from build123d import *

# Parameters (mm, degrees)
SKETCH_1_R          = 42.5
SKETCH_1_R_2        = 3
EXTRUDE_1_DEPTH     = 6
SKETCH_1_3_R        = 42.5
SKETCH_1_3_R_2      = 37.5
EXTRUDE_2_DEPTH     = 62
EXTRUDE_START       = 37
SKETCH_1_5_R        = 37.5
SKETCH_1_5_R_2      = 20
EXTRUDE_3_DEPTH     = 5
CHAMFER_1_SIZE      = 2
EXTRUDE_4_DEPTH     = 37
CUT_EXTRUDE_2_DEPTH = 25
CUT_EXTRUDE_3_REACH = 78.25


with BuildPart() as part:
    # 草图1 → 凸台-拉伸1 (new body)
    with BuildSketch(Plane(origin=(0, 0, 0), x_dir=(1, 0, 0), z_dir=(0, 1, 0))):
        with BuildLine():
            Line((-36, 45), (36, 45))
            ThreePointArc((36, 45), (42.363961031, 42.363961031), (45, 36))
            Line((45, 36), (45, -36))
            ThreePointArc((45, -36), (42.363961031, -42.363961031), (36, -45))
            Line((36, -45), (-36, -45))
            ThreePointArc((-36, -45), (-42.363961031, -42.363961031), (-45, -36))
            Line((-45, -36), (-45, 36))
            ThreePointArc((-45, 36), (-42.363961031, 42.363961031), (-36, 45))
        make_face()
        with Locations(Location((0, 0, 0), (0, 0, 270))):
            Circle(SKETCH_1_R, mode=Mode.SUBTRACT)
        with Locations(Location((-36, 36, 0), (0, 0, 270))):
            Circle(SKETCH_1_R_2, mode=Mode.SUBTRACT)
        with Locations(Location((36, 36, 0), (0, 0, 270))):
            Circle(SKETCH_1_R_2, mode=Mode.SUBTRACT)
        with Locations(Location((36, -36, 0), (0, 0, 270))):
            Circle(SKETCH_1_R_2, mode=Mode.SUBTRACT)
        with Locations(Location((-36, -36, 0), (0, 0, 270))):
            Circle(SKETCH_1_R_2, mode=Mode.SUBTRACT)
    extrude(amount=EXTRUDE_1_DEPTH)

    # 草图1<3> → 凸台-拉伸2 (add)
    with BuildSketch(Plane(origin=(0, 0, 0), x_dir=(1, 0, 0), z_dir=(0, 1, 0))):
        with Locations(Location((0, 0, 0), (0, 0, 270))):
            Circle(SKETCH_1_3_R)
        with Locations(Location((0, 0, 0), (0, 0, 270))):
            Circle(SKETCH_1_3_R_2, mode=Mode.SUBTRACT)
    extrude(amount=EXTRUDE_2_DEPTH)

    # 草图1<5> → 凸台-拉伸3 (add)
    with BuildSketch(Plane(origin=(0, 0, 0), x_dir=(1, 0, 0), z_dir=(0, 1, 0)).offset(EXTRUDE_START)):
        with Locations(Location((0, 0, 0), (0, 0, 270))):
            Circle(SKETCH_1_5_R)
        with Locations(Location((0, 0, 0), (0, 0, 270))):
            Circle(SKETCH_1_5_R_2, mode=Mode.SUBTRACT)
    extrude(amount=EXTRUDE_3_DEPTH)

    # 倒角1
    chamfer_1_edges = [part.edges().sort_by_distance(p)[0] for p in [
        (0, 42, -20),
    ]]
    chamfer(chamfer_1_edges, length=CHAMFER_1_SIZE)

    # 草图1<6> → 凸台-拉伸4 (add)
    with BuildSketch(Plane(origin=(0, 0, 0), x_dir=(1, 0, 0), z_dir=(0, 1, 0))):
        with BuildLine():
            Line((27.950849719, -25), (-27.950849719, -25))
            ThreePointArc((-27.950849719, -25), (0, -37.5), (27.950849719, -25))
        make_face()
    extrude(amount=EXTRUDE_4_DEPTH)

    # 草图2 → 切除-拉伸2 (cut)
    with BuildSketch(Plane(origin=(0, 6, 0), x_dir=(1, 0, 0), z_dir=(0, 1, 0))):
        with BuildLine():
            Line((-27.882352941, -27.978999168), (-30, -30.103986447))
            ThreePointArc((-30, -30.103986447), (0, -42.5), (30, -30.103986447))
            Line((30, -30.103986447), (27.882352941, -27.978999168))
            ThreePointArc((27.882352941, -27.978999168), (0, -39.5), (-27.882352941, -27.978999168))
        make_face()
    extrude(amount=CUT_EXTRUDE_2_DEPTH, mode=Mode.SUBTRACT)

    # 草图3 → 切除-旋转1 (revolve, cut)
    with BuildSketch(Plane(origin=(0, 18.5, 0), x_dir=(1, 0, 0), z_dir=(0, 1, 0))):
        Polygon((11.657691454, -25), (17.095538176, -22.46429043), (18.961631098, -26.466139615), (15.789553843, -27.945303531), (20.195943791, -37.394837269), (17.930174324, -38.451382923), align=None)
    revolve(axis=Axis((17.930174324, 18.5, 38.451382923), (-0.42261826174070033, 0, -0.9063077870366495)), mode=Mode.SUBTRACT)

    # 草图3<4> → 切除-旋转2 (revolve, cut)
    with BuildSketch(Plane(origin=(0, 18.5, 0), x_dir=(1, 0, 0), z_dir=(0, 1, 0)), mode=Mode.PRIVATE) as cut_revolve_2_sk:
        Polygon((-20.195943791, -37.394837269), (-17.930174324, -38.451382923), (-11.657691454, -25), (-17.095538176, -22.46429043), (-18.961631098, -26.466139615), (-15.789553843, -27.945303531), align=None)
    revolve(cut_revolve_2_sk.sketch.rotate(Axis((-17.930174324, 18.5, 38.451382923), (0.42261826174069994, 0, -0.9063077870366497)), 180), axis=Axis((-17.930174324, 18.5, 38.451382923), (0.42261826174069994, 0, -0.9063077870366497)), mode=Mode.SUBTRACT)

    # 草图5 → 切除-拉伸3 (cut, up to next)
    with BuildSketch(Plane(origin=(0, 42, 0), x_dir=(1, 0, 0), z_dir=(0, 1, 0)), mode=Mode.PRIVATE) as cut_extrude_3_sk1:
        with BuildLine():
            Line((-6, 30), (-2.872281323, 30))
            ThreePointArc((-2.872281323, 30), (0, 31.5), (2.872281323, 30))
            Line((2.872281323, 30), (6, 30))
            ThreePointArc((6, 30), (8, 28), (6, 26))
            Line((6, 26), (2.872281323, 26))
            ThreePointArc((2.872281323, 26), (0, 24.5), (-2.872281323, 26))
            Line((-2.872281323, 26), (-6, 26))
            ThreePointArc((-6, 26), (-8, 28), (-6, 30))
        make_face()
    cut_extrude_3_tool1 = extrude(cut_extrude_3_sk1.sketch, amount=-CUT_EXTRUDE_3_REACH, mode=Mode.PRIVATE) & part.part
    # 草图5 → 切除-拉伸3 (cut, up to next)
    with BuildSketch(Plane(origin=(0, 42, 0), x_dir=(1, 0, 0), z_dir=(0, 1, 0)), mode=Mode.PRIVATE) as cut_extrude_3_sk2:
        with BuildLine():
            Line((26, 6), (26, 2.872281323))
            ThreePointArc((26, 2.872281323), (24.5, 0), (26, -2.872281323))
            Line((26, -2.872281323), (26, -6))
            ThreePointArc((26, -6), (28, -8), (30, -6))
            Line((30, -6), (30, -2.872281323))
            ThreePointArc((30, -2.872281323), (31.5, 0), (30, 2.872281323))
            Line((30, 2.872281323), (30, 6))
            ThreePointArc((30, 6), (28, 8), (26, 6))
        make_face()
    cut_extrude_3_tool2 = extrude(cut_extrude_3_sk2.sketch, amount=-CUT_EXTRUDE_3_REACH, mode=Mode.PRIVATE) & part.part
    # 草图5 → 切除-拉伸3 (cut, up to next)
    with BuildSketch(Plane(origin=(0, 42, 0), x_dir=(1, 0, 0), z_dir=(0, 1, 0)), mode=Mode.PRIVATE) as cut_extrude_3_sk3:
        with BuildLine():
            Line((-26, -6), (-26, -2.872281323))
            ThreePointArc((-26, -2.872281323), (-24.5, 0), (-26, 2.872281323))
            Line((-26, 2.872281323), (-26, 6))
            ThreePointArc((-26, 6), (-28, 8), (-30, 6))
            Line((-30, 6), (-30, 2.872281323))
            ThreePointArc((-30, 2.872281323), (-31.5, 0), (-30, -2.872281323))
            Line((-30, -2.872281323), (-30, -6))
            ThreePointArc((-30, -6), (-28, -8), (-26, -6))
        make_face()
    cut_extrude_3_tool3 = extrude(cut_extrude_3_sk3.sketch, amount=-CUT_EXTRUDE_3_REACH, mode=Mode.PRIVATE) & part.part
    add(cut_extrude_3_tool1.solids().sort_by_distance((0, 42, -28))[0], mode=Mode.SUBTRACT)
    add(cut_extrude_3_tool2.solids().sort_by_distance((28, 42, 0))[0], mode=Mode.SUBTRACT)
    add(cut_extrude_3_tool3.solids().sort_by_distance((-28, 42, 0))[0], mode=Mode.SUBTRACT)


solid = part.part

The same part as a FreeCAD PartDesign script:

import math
import FreeCAD as App
import Part
import Sketcher
from FreeCAD import Vector
Q = App.Units.Quantity


def edges_at(feature, points):
    """Names of the edges that pass closest to the given points."""
    edges = feature.Shape.Edges
    near = lambda p: min(range(len(edges)), key=lambda i: edges[i].distToShape(Part.Vertex(*p))[0])
    return sorted({f"Edge{near(p) + 1}" for p in points})

doc = App.newDocument("Part")
body = doc.addObject("PartDesign::Body", "Body")

# Sketch on XZ plane
sketch1 = body.newObject("Sketcher::SketchObject", "Sketch")
sketch1.AttachmentSupport = (doc.getObject("XZ_Plane"), [""])
sketch1.MapMode = "FlatFace"
sketch1.addGeometry([
    Part.LineSegment(Vector(36, -45, 0), Vector(-36, -45, 0)),  # 0
    Part.ArcOfCircle(Part.Circle(Vector(-36, -36, 0), Vector(0, 0, 1), 9), math.radians(180), math.radians(270)),  # 1
    Part.LineSegment(Vector(-45, -36, 0), Vector(-45, 36, 0)),  # 2
    Part.ArcOfCircle(Part.Circle(Vector(-36, 36, 0), Vector(0, 0, 1), 9), math.radians(90), math.radians(180)),  # 3
    Part.LineSegment(Vector(-36, 45, 0), Vector(36, 45, 0)),  # 4
    Part.ArcOfCircle(Part.Circle(Vector(36, 36, 0), Vector(0, 0, 1), 9), math.radians(0), math.radians(90)),  # 5
    Part.LineSegment(Vector(45, 36, 0), Vector(45, -36, 0)),  # 6
    Part.ArcOfCircle(Part.Circle(Vector(36, -36, 0), Vector(0, 0, 1), 9), math.radians(-90), math.radians(0)),  # 7
    Part.Circle(Vector(36, 36, 0), Vector(0, 0, 1), 3),  # 8
    Part.Circle(Vector(-36, 36, 0), Vector(0, 0, 1), 3),  # 9
    Part.Circle(Vector(36, -36, 0), Vector(0, 0, 1), 3),  # 10
    Part.Circle(Vector(0, 0, 0), Vector(0, 0, 1), 42.5),  # 11
    Part.Circle(Vector(-36, -36, 0), Vector(0, 0, 1), 3),  # 12
], False)
sketch1.addConstraint([
    Sketcher.Constraint("Tangent", 0, 2, 1, 2),
    Sketcher.Constraint("Tangent", 1, 1, 2, 1),
    Sketcher.Constraint("Tangent", 2, 2, 3, 2),
    Sketcher.Constraint("Tangent", 3, 1, 4, 1),
    Sketcher.Constraint("Tangent", 4, 2, 5, 2),
    Sketcher.Constraint("Tangent", 5, 1, 6, 1),
    Sketcher.Constraint("Tangent", 6, 2, 7, 2),
    Sketcher.Constraint("Tangent", 7, 1, 0, 1),
    Sketcher.Constraint("Horizontal", 0),
    Sketcher.Constraint("Vertical", 2),
    Sketcher.Constraint("Horizontal", 4),
    Sketcher.Constraint("Vertical", 6),
    Sketcher.Constraint("Coincident", 11, 3, -1, 1),
    Sketcher.Constraint("Coincident", 8, 3, 5, 3),
    Sketcher.Constraint("Coincident", 9, 3, 3, 3),
    Sketcher.Constraint("Coincident", 10, 3, 7, 3),
    Sketcher.Constraint("Coincident", 12, 3, 1, 3),
    Sketcher.Constraint("Equal", 1, 3),
    Sketcher.Constraint("Equal", 3, 5),
    Sketcher.Constraint("Equal", 5, 7),
    Sketcher.Constraint("Equal", 8, 9),
    Sketcher.Constraint("Equal", 9, 10),
    Sketcher.Constraint("Equal", 10, 12),
    Sketcher.Constraint("Symmetric", 1, 3, 5, 3, -1, 1),
    Sketcher.Constraint("Equal", 4, 2),
    Sketcher.Constraint("Diameter", 8, Q("6 mm")),
    Sketcher.Constraint("Diameter", 11, Q("85 mm")),
    Sketcher.Constraint("Radius", 1, Q("9 mm")),
    Sketcher.Constraint("DistanceX", 0, 2, 0, 1, Q("72 mm")),
])
pad1 = body.newObject("PartDesign::Pad", "Pad")
pad1.Profile = sketch1
pad1.Length = 6
pad1.Reversed = True

# Sketch on XZ plane
sketch2 = body.newObject("Sketcher::SketchObject", "Sketch001")
sketch2.AttachmentSupport = (doc.getObject("XZ_Plane"), [""])
sketch2.MapMode = "FlatFace"
sketch2.addGeometry([
    Part.Circle(Vector(0, 0, 0), Vector(0, 0, 1), 42),
    Part.Circle(Vector(0, 0, 0), Vector(0, 0, 1), 38),
], False)
sketch2.addConstraint([
    Sketcher.Constraint("Coincident", 0, 3, -1, 1),
    Sketcher.Constraint("Coincident", 1, 3, -1, 1),
    Sketcher.Constraint("Diameter", 0, Q("85 mm")),
    Sketcher.Constraint("Diameter", 1, Q("75 mm")),
])
pad2 = body.newObject("PartDesign::Pad", "Pad001")
pad2.Profile = sketch2
pad2.Length = 62
pad2.Reversed = True

# Sketch on XZ plane
sketch3 = body.newObject("Sketcher::SketchObject", "Sketch002")
sketch3.AttachmentSupport = (doc.getObject("XZ_Plane"), [""])
sketch3.MapMode = "FlatFace"
sketch3.AttachmentOffset = App.Placement(Vector(0, 0, -37), App.Rotation())
sketch3.addGeometry([
    Part.Circle(Vector(0, 0, 0), Vector(0, 0, 1), 38),
    Part.Circle(Vector(0, 0, 0), Vector(0, 0, 1), 20),
], False)
sketch3.addConstraint([
    Sketcher.Constraint("Coincident", 0, 3, -1, 1),
    Sketcher.Constraint("Coincident", 1, 3, -1, 1),
    Sketcher.Constraint("Diameter", 0, Q("75 mm")),
    Sketcher.Constraint("Diameter", 1, Q("40 mm")),
])
pad3 = body.newObject("PartDesign::Pad", "Pad002")
pad3.Profile = sketch3
pad3.Length = 5
pad3.Reversed = True
doc.recompute()

chamfer = body.newObject("PartDesign::Chamfer", "Chamfer")
chamfer.Base = (pad3, edges_at(pad3, [(0, 42, -20)]))
chamfer.Size = 2

# Sketch on XZ plane
sketch4 = body.newObject("Sketcher::SketchObject", "Sketch003")
sketch4.AttachmentSupport = (doc.getObject("XZ_Plane"), [""])
sketch4.MapMode = "FlatFace"
sketch4.addGeometry([
    Part.LineSegment(Vector(28, 25, 0), Vector(-28, 25, 0)),
    Part.ArcOfCircle(Part.Circle(Vector(0, 0, 0), Vector(0, 0, 1), 38), math.radians(42), math.radians(138)),
], False)
sketch4.addConstraint([
    Sketcher.Constraint("Coincident", 0, 1, 1, 1),
    Sketcher.Constraint("Coincident", 1, 2, 0, 2),
    Sketcher.Constraint("Horizontal", 0),
    Sketcher.Constraint("Coincident", 1, 3, -1, 1),
    Sketcher.Constraint("Radius", 1, Q("37.5 mm")),
    Sketcher.Constraint("DistanceY", -1, 1, 0, 1, Q("25 mm")),
])
pad4 = body.newObject("PartDesign::Pad", "Pad003")
pad4.Profile = sketch4
pad4.Length = 37
pad4.Reversed = True

# Sketch on XZ plane
sketch5 = body.newObject("Sketcher::SketchObject", "Sketch004")
sketch5.AttachmentSupport = (doc.getObject("XZ_Plane"), [""])
sketch5.MapMode = "FlatFace"
sketch5.AttachmentOffset = App.Placement(Vector(0, 0, -6), App.Rotation())
sketch5.addGeometry([
    Part.LineSegment(Vector(-27.9, 28, 0), Vector(-30, 30.1, 0)),
    Part.ArcOfCircle(Part.Circle(Vector(0, 0, 0), Vector(0, 0, 1), 42.5), math.radians(45), math.radians(135)),
    Part.LineSegment(Vector(30, 30.1, 0), Vector(27.9, 28, 0)),
    Part.ArcOfCircle(Part.Circle(Vector(0, 0, 0), Vector(0, 0, 1), 39.5), math.radians(45), math.radians(135)),
], False)
sketch5.addConstraint([
    Sketcher.Constraint("Coincident", 0, 2, 1, 2),
    Sketcher.Constraint("Coincident", 1, 1, 2, 1),
    Sketcher.Constraint("Coincident", 2, 2, 3, 1),
    Sketcher.Constraint("Coincident", 3, 2, 0, 1),
    Sketcher.Constraint("Coincident", 1, 3, -1, 1),
    Sketcher.Constraint("Coincident", 3, 3, -1, 1),
    Sketcher.Constraint("Horizontal", 0, 2, 1, 1),
    Sketcher.Constraint("Horizontal", 2, 2, 3, 2),
    Sketcher.Constraint("Radius", 1, Q("42.5 mm")),
    Sketcher.Constraint("Radius", 3, Q("39.5 mm")),
    Sketcher.Constraint("DistanceX", 0, 2, -1, 1, Q("30 mm")),
    Sketcher.Constraint("DistanceY", -1, 1, 2, 2, Q("27.978999 mm")),
])
pocket1 = body.newObject("PartDesign::Pocket", "Pocket")
pocket1.Profile = sketch5
pocket1.Length = 25

# Sketch on XZ plane
sketch6 = body.newObject("Sketcher::SketchObject", "Sketch005")
sketch6.AttachmentSupport = (doc.getObject("XZ_Plane"), [""])
sketch6.MapMode = "FlatFace"
sketch6.AttachmentOffset = App.Placement(Vector(0, 0, -18.5), App.Rotation())
sketch6.addGeometry([
    Part.LineSegment(Vector(17.1, 22.5, 0), Vector(11.7, 25, 0)),  # 0
    Part.LineSegment(Vector(11.7, 25, 0), Vector(17.9, 38.5, 0)),  # 1
    Part.LineSegment(Vector(17.9, 38.5, 0), Vector(20.2, 37.4, 0)),  # 2
    Part.LineSegment(Vector(20.2, 37.4, 0), Vector(15.8, 27.9, 0)),  # 3
    Part.LineSegment(Vector(15.8, 27.9, 0), Vector(19, 26.5, 0)),  # 4
    Part.LineSegment(Vector(19, 26.5, 0), Vector(17.1, 22.5, 0)),  # 5
], False)
sketch6.addGeometry(Part.LineSegment(Vector(17.9, 38.5, 0), Vector(11.7, 25, 0)), True)  # axis
sketch6.addConstraint([
    Sketcher.Constraint("Coincident", 0, 2, 1, 1),
    Sketcher.Constraint("Coincident", 1, 2, 2, 1),
    Sketcher.Constraint("Coincident", 2, 2, 3, 1),
    Sketcher.Constraint("Coincident", 3, 2, 4, 1),
    Sketcher.Constraint("Coincident", 4, 2, 5, 1),
    Sketcher.Constraint("Coincident", 5, 2, 0, 1),
    Sketcher.Constraint("Coincident", 6, 1, 1, 2),
    Sketcher.Constraint("Coincident", 6, 2, 0, 2),
    Sketcher.Constraint("Perpendicular", 0, 1),
    Sketcher.Constraint("Perpendicular", 1, 2),
    Sketcher.Constraint("Perpendicular", 2, 3),
    Sketcher.Constraint("Perpendicular", 3, 4),
    Sketcher.Constraint("Perpendicular", 4, 5),
    Sketcher.Constraint("Angle", 0, Q("155 deg")),
    Sketcher.Constraint("Distance", 0, Q("6 mm")),
    Sketcher.Constraint("DistanceY", -1, 1, 0, 2, Q("25 mm")),
    Sketcher.Constraint("Distance", 2, Q("2.5 mm")),
    Sketcher.Constraint("Distance", 1, Q("14.841959 mm")),
    Sketcher.Constraint("DistanceX", -1, 1, 0, 2, Q("11.657691 mm")),
    Sketcher.Constraint("DistanceX", -1, 1, 4, 2, Q("18.961631 mm")),
])
groove = body.newObject("PartDesign::Groove", "Groove")
groove.Profile = sketch6
groove.ReferenceAxis = (sketch6, ["Axis0"])
groove.Angle = 360

# Sketch on XZ plane
sketch7 = body.newObject("Sketcher::SketchObject", "Sketch006")
sketch7.AttachmentSupport = (doc.getObject("XZ_Plane"), [""])
sketch7.MapMode = "FlatFace"
sketch7.AttachmentOffset = App.Placement(Vector(0, 0, -18.5), App.Rotation())
sketch7.addGeometry([
    Part.LineSegment(Vector(-20.2, 37.4, 0), Vector(-17.9, 38.5, 0)),  # 0
    Part.LineSegment(Vector(-17.9, 38.5, 0), Vector(-11.7, 25, 0)),  # 1
    Part.LineSegment(Vector(-11.7, 25, 0), Vector(-17.1, 22.5, 0)),  # 2
    Part.LineSegment(Vector(-17.1, 22.5, 0), Vector(-19, 26.5, 0)),  # 3
    Part.LineSegment(Vector(-19, 26.5, 0), Vector(-15.8, 27.9, 0)),  # 4
    Part.LineSegment(Vector(-15.8, 27.9, 0), Vector(-20.2, 37.4, 0)),  # 5
], False)
sketch7.addGeometry(Part.LineSegment(Vector(-17.9, 38.5, 0), Vector(-11.7, 25, 0)), True)  # axis
sketch7.addConstraint([
    Sketcher.Constraint("Coincident", 0, 2, 1, 1),
    Sketcher.Constraint("Coincident", 1, 2, 2, 1),
    Sketcher.Constraint("Coincident", 2, 2, 3, 1),
    Sketcher.Constraint("Coincident", 3, 2, 4, 1),
    Sketcher.Constraint("Coincident", 4, 2, 5, 1),
    Sketcher.Constraint("Coincident", 5, 2, 0, 1),
    Sketcher.Constraint("Coincident", 6, 1, 0, 2),
    Sketcher.Constraint("Coincident", 6, 2, 1, 2),
    Sketcher.Constraint("Perpendicular", 0, 1),
    Sketcher.Constraint("Perpendicular", 1, 2),
    Sketcher.Constraint("Perpendicular", 2, 3),
    Sketcher.Constraint("Perpendicular", 3, 4),
    Sketcher.Constraint("Perpendicular", 4, 5),
    Sketcher.Constraint("Angle", 0, Q("25 deg")),
    Sketcher.Constraint("Distance", 2, Q("6 mm")),
    Sketcher.Constraint("DistanceY", -1, 1, 1, 2, Q("25 mm")),
    Sketcher.Constraint("Distance", 0, Q("2.5 mm")),
    Sketcher.Constraint("Distance", 1, Q("14.841959 mm")),
    Sketcher.Constraint("DistanceX", 1, 2, -1, 1, Q("11.657691 mm")),
    Sketcher.Constraint("DistanceX", 3, 2, -1, 1, Q("18.961631 mm")),
])
groove2 = body.newObject("PartDesign::Groove", "Groove001")
groove2.Profile = sketch7
groove2.ReferenceAxis = (sketch7, ["Axis0"])
groove2.Angle = 360

# Sketch on XZ plane
sketch8 = body.newObject("Sketcher::SketchObject", "Sketch007")
sketch8.AttachmentSupport = (doc.getObject("XZ_Plane"), [""])
sketch8.MapMode = "FlatFace"
sketch8.AttachmentOffset = App.Placement(Vector(0, 0, -42), App.Rotation())
sketch8.addGeometry([
    Part.LineSegment(Vector(-2.9, -30, 0), Vector(-6, -30, 0)),  # 0
    Part.ArcOfCircle(Part.Circle(Vector(-6, -28, 0), Vector(0, 0, 1), 2), math.radians(90), math.radians(270)),  # 1
    Part.LineSegment(Vector(-6, -26, 0), Vector(-2.9, -26, 0)),  # 2
    Part.ArcOfCircle(Part.Circle(Vector(0, -28, 0), Vector(0, 0, 1), 3.5), math.radians(35), math.radians(145)),  # 3
    Part.LineSegment(Vector(2.9, -26, 0), Vector(6, -26, 0)),  # 4
    Part.ArcOfCircle(Part.Circle(Vector(6, -28, 0), Vector(0, 0, 1), 2), math.radians(-90), math.radians(90)),  # 5
    Part.LineSegment(Vector(6, -30, 0), Vector(2.9, -30, 0)),  # 6
    Part.ArcOfCircle(Part.Circle(Vector(0, -28, 0), Vector(0, 0, 1), 3.5), math.radians(-145), math.radians(-35)),  # 7
], False)
sketch8.addConstraint([
    Sketcher.Constraint("Tangent", 0, 2, 1, 2),
    Sketcher.Constraint("Tangent", 1, 1, 2, 1),
    Sketcher.Constraint("Coincident", 2, 2, 3, 2),
    Sketcher.Constraint("Coincident", 3, 1, 4, 1),
    Sketcher.Constraint("Tangent", 4, 2, 5, 2),
    Sketcher.Constraint("Tangent", 5, 1, 6, 1),
    Sketcher.Constraint("Coincident", 6, 2, 7, 2),
    Sketcher.Constraint("Coincident", 7, 1, 0, 1),
    Sketcher.Constraint("Horizontal", 0),
    Sketcher.Constraint("Horizontal", 2),
    Sketcher.Constraint("Horizontal", 4),
    Sketcher.Constraint("Horizontal", 6),
    Sketcher.Constraint("Coincident", 7, 3, 3, 3),
    Sketcher.Constraint("Equal", 1, 5),
    Sketcher.Constraint("Equal", 3, 7),
    Sketcher.Constraint("Symmetric", 1, 3, 5, 3, -2),
    Sketcher.Constraint("PointOnObject", 3, 3, -2),
    Sketcher.Constraint("Horizontal", 1, 3, 3, 3),
    Sketcher.Constraint("Radius", 1, Q("2 mm")),
    Sketcher.Constraint("Radius", 3, Q("3.5 mm")),
    Sketcher.Constraint("DistanceX", 1, 3, -1, 1, Q("6 mm")),
    Sketcher.Constraint("DistanceY", 1, 3, -1, 1, Q("28 mm")),
])
pocket2 = body.newObject("PartDesign::Pocket", "Pocket001")
pocket2.Profile = sketch8
pocket2.Type = "UpToFirst"
pocket2.Reversed = True

# Sketch on XZ plane
sketch9 = body.newObject("Sketcher::SketchObject", "Sketch008")
sketch9.AttachmentSupport = (doc.getObject("XZ_Plane"), [""])
sketch9.MapMode = "FlatFace"
sketch9.AttachmentOffset = App.Placement(Vector(0, 0, -42), App.Rotation())
sketch9.addGeometry([
    Part.LineSegment(Vector(26, -6, 0), Vector(26, -2.9, 0)),  # 0
    Part.ArcOfCircle(Part.Circle(Vector(28, 0, 0), Vector(0, 0, 1), 3.5), math.radians(125), math.radians(235)),  # 1
    Part.LineSegment(Vector(26, 2.9, 0), Vector(26, 6, 0)),  # 2
    Part.ArcOfCircle(Part.Circle(Vector(28, 6, 0), Vector(0, 0, 1), 2), math.radians(0), math.radians(180)),  # 3
    Part.LineSegment(Vector(30, 6, 0), Vector(30, 2.9, 0)),  # 4
    Part.ArcOfCircle(Part.Circle(Vector(28, 0, 0), Vector(0, 0, 1), 3.5), math.radians(-55), math.radians(55)),  # 5
    Part.LineSegment(Vector(30, -2.9, 0), Vector(30, -6, 0)),  # 6
    Part.ArcOfCircle(Part.Circle(Vector(28, -6, 0), Vector(0, 0, 1), 2), math.radians(180), math.radians(360)),  # 7
], False)
sketch9.addConstraint([
    Sketcher.Constraint("Coincident", 0, 2, 1, 2),
    Sketcher.Constraint("Coincident", 1, 1, 2, 1),
    Sketcher.Constraint("Tangent", 2, 2, 3, 2),
    Sketcher.Constraint("Tangent", 3, 1, 4, 1),
    Sketcher.Constraint("Coincident", 4, 2, 5, 2),
    Sketcher.Constraint("Coincident", 5, 1, 6, 1),
    Sketcher.Constraint("Tangent", 6, 2, 7, 2),
    Sketcher.Constraint("Tangent", 7, 1, 0, 1),
    Sketcher.Constraint("Vertical", 0),
    Sketcher.Constraint("Vertical", 2),
    Sketcher.Constraint("Vertical", 4),
    Sketcher.Constraint("Vertical", 6),
    Sketcher.Constraint("Coincident", 5, 3, 1, 3),
    Sketcher.Constraint("Equal", 1, 5),
    Sketcher.Constraint("Equal", 3, 7),
    Sketcher.Constraint("Symmetric", 3, 3, 7, 3, -1),
    Sketcher.Constraint("PointOnObject", 1, 3, -1),
    Sketcher.Constraint("Horizontal", 1, 1, 4, 2),
    Sketcher.Constraint("Radius", 3, Q("2 mm")),
    Sketcher.Constraint("Radius", 1, Q("3.5 mm")),
    Sketcher.Constraint("DistanceX", -1, 1, 1, 3, Q("28 mm")),
    Sketcher.Constraint("DistanceY", -1, 1, 3, 3, Q("6 mm")),
])
pocket3 = body.newObject("PartDesign::Pocket", "Pocket002")
pocket3.Profile = sketch9
pocket3.Type = "UpToFirst"
pocket3.Reversed = True

# Sketch on XZ plane
sketch10 = body.newObject("Sketcher::SketchObject", "Sketch009")
sketch10.AttachmentSupport = (doc.getObject("XZ_Plane"), [""])
sketch10.MapMode = "FlatFace"
sketch10.AttachmentOffset = App.Placement(Vector(0, 0, -42), App.Rotation())
sketch10.addGeometry([
    Part.LineSegment(Vector(-26, 6, 0), Vector(-26, 2.9, 0)),  # 0
    Part.ArcOfCircle(Part.Circle(Vector(-28, 0, 0), Vector(0, 0, 1), 3.5), math.radians(-55), math.radians(55)),  # 1
    Part.LineSegment(Vector(-26, -2.9, 0), Vector(-26, -6, 0)),  # 2
    Part.ArcOfCircle(Part.Circle(Vector(-28, -6, 0), Vector(0, 0, 1), 2), math.radians(180), math.radians(360)),  # 3
    Part.LineSegment(Vector(-30, -6, 0), Vector(-30, -2.9, 0)),  # 4
    Part.ArcOfCircle(Part.Circle(Vector(-28, 0, 0), Vector(0, 0, 1), 3.5), math.radians(125), math.radians(235)),  # 5
    Part.LineSegment(Vector(-30, 2.9, 0), Vector(-30, 6, 0)),  # 6
    Part.ArcOfCircle(Part.Circle(Vector(-28, 6, 0), Vector(0, 0, 1), 2), math.radians(0), math.radians(180)),  # 7
], False)
sketch10.addConstraint([
    Sketcher.Constraint("Coincident", 0, 2, 1, 2),
    Sketcher.Constraint("Coincident", 1, 1, 2, 1),
    Sketcher.Constraint("Tangent", 2, 2, 3, 2),
    Sketcher.Constraint("Tangent", 3, 1, 4, 1),
    Sketcher.Constraint("Coincident", 4, 2, 5, 2),
    Sketcher.Constraint("Coincident", 5, 1, 6, 1),
    Sketcher.Constraint("Tangent", 6, 2, 7, 2),
    Sketcher.Constraint("Tangent", 7, 1, 0, 1),
    Sketcher.Constraint("Vertical", 0),
    Sketcher.Constraint("Vertical", 2),
    Sketcher.Constraint("Vertical", 4),
    Sketcher.Constraint("Vertical", 6),
    Sketcher.Constraint("Coincident", 5, 3, 1, 3),
    Sketcher.Constraint("Equal", 1, 5),
    Sketcher.Constraint("Equal", 3, 7),
    Sketcher.Constraint("Symmetric", 3, 3, 7, 3, -1),
    Sketcher.Constraint("PointOnObject", 1, 3, -1),
    Sketcher.Constraint("Horizontal", 1, 1, 4, 2),
    Sketcher.Constraint("Radius", 3, Q("2 mm")),
    Sketcher.Constraint("Radius", 1, Q("3.5 mm")),
    Sketcher.Constraint("DistanceX", 1, 3, -1, 1, Q("28 mm")),
    Sketcher.Constraint("DistanceY", 3, 3, -1, 1, Q("6 mm")),
])
pocket4 = body.newObject("PartDesign::Pocket", "Pocket003")
pocket4.Profile = sketch10
pocket4.Type = "UpToFirst"
pocket4.Reversed = True

doc.recompute()
